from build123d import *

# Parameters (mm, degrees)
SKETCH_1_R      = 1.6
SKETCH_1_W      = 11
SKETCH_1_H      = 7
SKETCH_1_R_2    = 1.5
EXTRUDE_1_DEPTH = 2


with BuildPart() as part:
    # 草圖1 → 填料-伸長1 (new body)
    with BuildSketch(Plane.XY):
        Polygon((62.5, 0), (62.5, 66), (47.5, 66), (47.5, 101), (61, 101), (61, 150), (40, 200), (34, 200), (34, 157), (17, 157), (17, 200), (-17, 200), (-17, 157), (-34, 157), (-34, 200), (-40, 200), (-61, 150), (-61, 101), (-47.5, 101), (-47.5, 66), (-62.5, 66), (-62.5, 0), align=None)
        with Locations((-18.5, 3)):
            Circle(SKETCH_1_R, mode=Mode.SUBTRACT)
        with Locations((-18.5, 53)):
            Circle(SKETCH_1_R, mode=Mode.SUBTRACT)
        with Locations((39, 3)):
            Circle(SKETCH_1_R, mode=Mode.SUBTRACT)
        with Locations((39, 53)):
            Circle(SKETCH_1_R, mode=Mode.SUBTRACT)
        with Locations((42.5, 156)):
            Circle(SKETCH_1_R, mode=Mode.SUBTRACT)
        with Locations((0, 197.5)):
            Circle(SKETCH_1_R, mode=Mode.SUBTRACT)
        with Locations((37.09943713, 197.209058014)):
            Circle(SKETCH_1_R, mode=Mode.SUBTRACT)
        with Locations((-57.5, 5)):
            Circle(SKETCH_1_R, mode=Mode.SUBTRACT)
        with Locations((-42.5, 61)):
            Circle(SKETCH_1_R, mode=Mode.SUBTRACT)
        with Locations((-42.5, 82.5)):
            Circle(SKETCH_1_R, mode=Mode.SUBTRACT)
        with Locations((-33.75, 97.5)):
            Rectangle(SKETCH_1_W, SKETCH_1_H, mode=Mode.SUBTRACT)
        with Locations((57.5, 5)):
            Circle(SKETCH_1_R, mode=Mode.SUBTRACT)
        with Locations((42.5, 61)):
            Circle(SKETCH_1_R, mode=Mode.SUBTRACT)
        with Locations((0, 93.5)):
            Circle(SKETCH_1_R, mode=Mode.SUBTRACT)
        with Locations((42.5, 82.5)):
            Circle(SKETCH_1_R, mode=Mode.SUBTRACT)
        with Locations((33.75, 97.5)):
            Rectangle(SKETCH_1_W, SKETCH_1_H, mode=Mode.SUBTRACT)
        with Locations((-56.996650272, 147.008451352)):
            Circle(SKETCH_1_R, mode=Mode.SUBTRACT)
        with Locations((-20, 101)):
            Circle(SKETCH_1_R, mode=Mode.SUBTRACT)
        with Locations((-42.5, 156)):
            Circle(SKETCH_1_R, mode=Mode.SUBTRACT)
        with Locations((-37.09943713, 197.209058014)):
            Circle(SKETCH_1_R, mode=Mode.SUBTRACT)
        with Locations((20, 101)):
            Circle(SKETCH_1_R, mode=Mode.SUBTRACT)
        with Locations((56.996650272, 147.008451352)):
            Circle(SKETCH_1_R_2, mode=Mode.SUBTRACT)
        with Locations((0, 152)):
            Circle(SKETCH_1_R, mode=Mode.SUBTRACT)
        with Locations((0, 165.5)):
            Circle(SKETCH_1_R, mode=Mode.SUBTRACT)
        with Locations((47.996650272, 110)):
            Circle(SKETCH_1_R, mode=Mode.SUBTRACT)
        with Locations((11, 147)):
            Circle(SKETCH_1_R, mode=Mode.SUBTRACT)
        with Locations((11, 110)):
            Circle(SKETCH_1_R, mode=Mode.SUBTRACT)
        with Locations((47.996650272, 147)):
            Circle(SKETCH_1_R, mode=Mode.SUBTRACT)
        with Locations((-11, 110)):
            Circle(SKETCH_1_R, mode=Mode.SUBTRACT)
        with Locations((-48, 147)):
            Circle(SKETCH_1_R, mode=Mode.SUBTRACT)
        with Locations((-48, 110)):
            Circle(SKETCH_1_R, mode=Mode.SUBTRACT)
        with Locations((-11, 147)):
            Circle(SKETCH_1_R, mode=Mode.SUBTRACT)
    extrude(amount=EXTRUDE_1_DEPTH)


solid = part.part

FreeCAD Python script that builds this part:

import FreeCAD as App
import Part
import Sketcher
from FreeCAD import Vector


def add_polygon(sketch, points):
    """Adds a closed chain of lines whose ends are joined by coincident constraints."""
    first, n = sketch.GeometryCount, len(points)
    for a, b in zip(points, points[1:] + points[:1]):
        sketch.addGeometry(Part.LineSegment(App.Vector(*a, 0), App.Vector(*b, 0)), False)
    for i in range(n):
        sketch.addConstraint(Sketcher.Constraint("Coincident", first + i, 2, first + (i + 1) % n, 1))

doc = App.newDocument("Part")
params = doc.addObject("Spreadsheet::Sheet", "Params")
for row, (alias, value) in enumerate([
    ("sketch1_diameter", "3 mm"),
    ("sketch1_diameter2", "3.2 mm"),
    ("sketch1_width", "15 mm"),
    ("sketch1_width2", "6 mm"),
    ("sketch1_width3", "17 mm"),
    ("pad1_length", "2 mm"),
], start=1):
    params.set(f"A{row}", alias)
    params.set(f"B{row}", "=" + value)
    params.setAlias(f"B{row}", alias)

body = doc.addObject("PartDesign::Body", "Body")

sketch1 = body.newObject("Sketcher::SketchObject", "Sketch")
sketch1.AttachmentSupport = (doc.getObject("XY_Plane"), [""])
sketch1.MapMode = "FlatFace"
add_polygon(sketch1, [(62.5, 0), (62.5, 66), (47.5, 66), (47.5, 101), (61, 101), (61, 150), (40, 200), (34, 200), (34, 157), (17, 157), (17, 200), (-17, 200), (-17, 157), (-34, 157), (-34, 200), (-40, 200), (-61, 150), (-61, 101), (-47.5, 101), (-47.5, 66), (-62.5, 66), (-62.5, 0)])
sketch1.addGeometry(Part.Circle(Vector(-57.5, 5, 0), Vector(0, 0, 1), 1.6), False)
sketch1.addGeometry(Part.Circle(Vector(-18.5, 3, 0), Vector(0, 0, 1), 1.6), False)
sketch1.addGeometry(Part.Circle(Vector(-42.5, 61, 0), Vector(0, 0, 1), 1.6), False)
sketch1.addGeometry(Part.Circle(Vector(-42.5, 82.5, 0), Vector(0, 0, 1), 1.6), False)
add_polygon(sketch1, [(-28.2, 94), (-39.2, 94), (-39.2, 101), (-28.2, 101)])
sketch1.addGeometry(Part.Circle(Vector(-18.5, 53, 0), Vector(0, 0, 1), 1.6), False)
sketch1.addGeometry(Part.Circle(Vector(39, 3, 0), Vector(0, 0, 1), 1.6), False)
sketch1.addGeometry(Part.Circle(Vector(57.5, 5, 0), Vector(0, 0, 1), 1.6), False)
sketch1.addGeometry(Part.Circle(Vector(0, 93.5, 0), Vector(0, 0, 1), 1.6), False)
sketch1.addGeometry(Part.Circle(Vector(39, 53, 0), Vector(0, 0, 1), 1.6), False)
sketch1.addGeometry(Part.Circle(Vector(42.5, 61, 0), Vector(0, 0, 1), 1.6), False)
sketch1.addGeometry(Part.Circle(Vector(42.5, 82.5, 0), Vector(0, 0, 1), 1.6), False)
add_polygon(sketch1, [(39.2, 94), (28.2, 94), (28.2, 101), (39.2, 101)])
sketch1.addGeometry(Part.Circle(Vector(-48, 110, 0), Vector(0, 0, 1), 1.6), False)
sketch1.addGeometry(Part.Circle(Vector(-57, 147, 0), Vector(0, 0, 1), 1.6), False)
sketch1.addGeometry(Part.Circle(Vector(-48, 147, 0), Vector(0, 0, 1), 1.6), False)
sketch1.addGeometry(Part.Circle(Vector(-20, 101, 0), Vector(0, 0, 1), 1.6), False)
sketch1.addGeometry(Part.Circle(Vector(-11, 110, 0), Vector(0, 0, 1), 1.6), False)
sketch1.addGeometry(Part.Circle(Vector(-11, 147, 0), Vector(0, 0, 1), 1.6), False)
sketch1.addGeometry(Part.Circle(Vector(-42.5, 156, 0), Vector(0, 0, 1), 1.6), False)
sketch1.addGeometry(Part.Circle(Vector(-37.1, 197.2, 0), Vector(0, 0, 1), 1.6), False)
sketch1.addGeometry(Part.Circle(Vector(11, 110, 0), Vector(0, 0, 1), 1.6), False)
sketch1.addGeometry(Part.Circle(Vector(20, 101, 0), Vector(0, 0, 1), 1.6), False)
sketch1.addGeometry(Part.Circle(Vector(11, 147, 0), Vector(0, 0, 1), 1.6), False)
sketch1.addGeometry(Part.Circle(Vector(48, 110, 0), Vector(0, 0, 1), 1.6), False)
sketch1.addGeometry(Part.Circle(Vector(48, 147, 0), Vector(0, 0, 1), 1.6), False)
sketch1.addGeometry(Part.Circle(Vector(57, 147, 0), Vector(0, 0, 1), 1.5), False)
sketch1.addGeometry(Part.Circle(Vector(0, 152, 0), Vector(0, 0, 1), 1.6), False)
sketch1.addGeometry(Part.Circle(Vector(0, 165.5, 0), Vector(0, 0, 1), 1.6), False)
sketch1.addGeometry(Part.Circle(Vector(0, 197.5, 0), Vector(0, 0, 1), 1.6), False)
sketch1.addGeometry(Part.Circle(Vector(42.5, 156, 0), Vector(0, 0, 1), 1.6), False)
sketch1.addGeometry(Part.Circle(Vector(37.1, 197.2, 0), Vector(0, 0, 1), 1.6), False)
sketch1.addConstraint([
    Sketcher.Constraint("Vertical", 0),
    Sketcher.Constraint("Horizontal", 1),
    Sketcher.Constraint("Vertical", 2),
    Sketcher.Constraint("Horizontal", 3),
    Sketcher.Constraint("Vertical", 4),
    Sketcher.Constraint("Horizontal", 6),
    Sketcher.Constraint("Vertical", 7),
    Sketcher.Constraint("Horizontal", 8),
    Sketcher.Constraint("Vertical", 9),
    Sketcher.Constraint("Horizontal", 10),
    Sketcher.Constraint("Vertical", 11),
    Sketcher.Constraint("Horizontal", 12),
    Sketcher.Constraint("Vertical", 13),
    Sketcher.Constraint("Horizontal", 14),
    Sketcher.Constraint("Vertical", 16),
    Sketcher.Constraint("Horizontal", 17),
    Sketcher.Constraint("Vertical", 18),
    Sketcher.Constraint("Horizontal", 19),
    Sketcher.Constraint("Vertical", 20),
    Sketcher.Constraint("Horizontal", 21),
    Sketcher.Constraint("Horizontal", 26),
    Sketcher.Constraint("Vertical", 27),
    Sketcher.Constraint("Horizontal", 28),
    Sketcher.Constraint("Vertical", 29),
    Sketcher.Constraint("Horizontal", 37),
    Sketcher.Constraint("Vertical", 38),
    Sketcher.Constraint("Horizontal", 39),
    Sketcher.Constraint("Vertical", 40),
    Sketcher.Constraint("Equal", 22, 23),
    Sketcher.Constraint("Equal", 23, 24),
    Sketcher.Constraint("Equal", 24, 25),
    Sketcher.Constraint("Equal", 25, 30),
    Sketcher.Constraint("Equal", 30, 31),
    Sketcher.Constraint("Equal", 31, 32),
    Sketcher.Constraint("Equal", 32, 33),
    Sketcher.Constraint("Equal", 33, 34),
    Sketcher.Constraint("Equal", 34, 35),
    Sketcher.Constraint("Equal", 35, 36),
    Sketcher.Constraint("Equal", 36, 41),
    Sketcher.Constraint("Equal", 41, 42),
    Sketcher.Constraint("Equal", 42, 43),
    Sketcher.Constraint("Equal", 43, 44),
    Sketcher.Constraint("Equal", 44, 45),
    Sketcher.Constraint("Equal", 45, 46),
    Sketcher.Constraint("Equal", 46, 47),
    Sketcher.Constraint("Equal", 47, 48),
    Sketcher.Constraint("Equal", 48, 49),
    Sketcher.Constraint("Equal", 49, 50),
    Sketcher.Constraint("Equal", 50, 51),
    Sketcher.Constraint("Equal", 51, 52),
    Sketcher.Constraint("Equal", 52, 53),
    Sketcher.Constraint("Equal", 53, 55),
    Sketcher.Constraint("Equal", 55, 56),
    Sketcher.Constraint("Equal", 56, 57),
    Sketcher.Constraint("Equal", 57, 58),
    Sketcher.Constraint("Equal", 58, 59),
    Sketcher.Constraint("Symmetric", 20, 2, 21, 2, -1, 1),
    Sketcher.Constraint("Symmetric", 22, 3, 32, 3, -2),
    Sketcher.Constraint("Symmetric", 24, 3, 35, 3, -2),
    Sketcher.Constraint("Symmetric", 25, 3, 36, 3, -2),
    Sketcher.Constraint("Symmetric", 45, 3, 49, 3, -2),
    Sketcher.Constraint("Symmetric", 44, 3, 50, 3, -2),
    Sketcher.Constraint("Symmetric", 46, 3, 51, 3, -2),
    Sketcher.Constraint("Symmetric", 42, 3, 54, 3, -2),
    Sketcher.Constraint("Symmetric", 47, 3, 58, 3, -2),
    Sketcher.Constraint("Symmetric", 48, 3, 59, 3, -2),
    Sketcher.Constraint("Symmetric", 8, 2, 11, 2, -2),
    Sketcher.Constraint("Symmetric", 6, 2, 13, 2, -2),
    Sketcher.Constraint("Symmetric", 4, 2, 15, 2, -2),
    Sketcher.Constraint("Symmetric", 2, 2, 17, 2, -2),
    Sketcher.Constraint("Symmetric", 29, 2, 37, 2, -2),
    Sketcher.Constraint("Symmetric", 27, 2, 39, 2, -2),
    Sketcher.Constraint("PointOnObject", 33, 3, -2),
    Sketcher.Constraint("PointOnObject", 55, 3, -2),
    Sketcher.Constraint("PointOnObject", 56, 3, -2),
    Sketcher.Constraint("PointOnObject", 57, 3, -2),
    Sketcher.Constraint("Horizontal", 23, 3, 31, 3),
    Sketcher.Constraint("Horizontal", 30, 3, 34, 3),
    Sketcher.Constraint("Horizontal", 41, 3, 45, 3),
    Sketcher.Constraint("Horizontal", 43, 3, 46, 3),
    Sketcher.Constraint("Horizontal", 49, 3, 52, 3),
    Sketcher.Constraint("Horizontal", 51, 3, 53, 3),
    Sketcher.Constraint("Horizontal", 50, 3, 2, 2),
    Sketcher.Constraint("Horizontal", 6, 2, 9, 2),
    Sketcher.Constraint("Horizontal", 1, 2, 18, 2),
    Sketcher.Constraint("Horizontal", 17, 2, 27, 2),
    Sketcher.Constraint("Vertical", 24, 3, 25, 3),
    Sketcher.Constraint("Vertical", 23, 3, 30, 3),
    Sketcher.Constraint("Vertical", 31, 3, 34, 3),
    Sketcher.Constraint("Vertical", 41, 3, 43, 3),
    Sketcher.Constraint("Vertical", 45, 3, 46, 3),
    Sketcher.Constraint("Vertical", 25, 3, 47, 3),
    Sketcher.Constraint("Vertical", 52, 3, 53, 3),
    Sketcher.Constraint("Equal", 6, 14),
    Sketcher.Constraint("Diameter", 54, 3.0),
    Sketcher.Constraint("Diameter", 22, 3.2),
    Sketcher.Constraint("DistanceX", 1, 2, 1, 1, 15.0),
    Sketcher.Constraint("DistanceX", 6, 2, 6, 1, 6.0),
    Sketcher.Constraint("DistanceX", 8, 2, 8, 1, 17.0),
    Sketcher.Constraint("DistanceX", 10, 2, 10, 1, 34.0),
    Sketcher.Constraint("DistanceX", 21, 1, 21, 2, 125.0),
    Sketcher.Constraint("DistanceX", 26, 2, 26, 1, 11.0),
    Sketcher.Constraint("DistanceY", 0, 1, 0, 2, 66.0),
    Sketcher.Constraint("DistanceY", 2, 1, 2, 2, 35.0),
    Sketcher.Constraint("DistanceY", 4, 1, 4, 2, 49.0),
    Sketcher.Constraint("DistanceY", 7, 2, 7, 1, 43.0),
    Sketcher.Constraint("DistanceY", 27, 1, 27, 2, 7.0),
    Sketcher.Constraint("DistanceX", 3, 1, 3, 2, 13.5),
    Sketcher.Constraint("DistanceY", -1, 1, 22, 3, 5.0),
    Sketcher.Constraint("DistanceY", -1, 1, 23, 3, 3.0),
    Sketcher.Constraint("DistanceY", -1, 1, 24, 3, 61.0),
    Sketcher.Constraint("DistanceY", -1, 1, 30, 3, 53.0),
    Sketcher.Constraint("DistanceX", -1, 1, 31, 3, 39.0),
    Sketcher.Constraint("DistanceX", 41, 3, -1, 1, 48.0),
    Sketcher.Constraint("DistanceY", -1, 1, 41, 3, 110.0),
    Sketcher.Constraint("DistanceY", -1, 1, 43, 3, 147.0),
    Sketcher.Constraint("DistanceX", 44, 3, -1, 1, 20.0),
    Sketcher.Constraint("DistanceX", 45, 3, -1, 1, 11.0),
    Sketcher.Constraint("DistanceY", -1, 1, 47, 3, 156.0),
    Sketcher.Constraint("DistanceY", -1, 1, 55, 3, 152.0),
    Sketcher.Constraint("DistanceY", -1, 1, 5, 2, 200.0),
    Sketcher.Constraint("DistanceX", 22, 3, 23, 3, 39.0),
    Sketcher.Constraint("DistanceX", 22, 3, 24, 3, 15.0),
    Sketcher.Constraint("DistanceX", 23, 3, 32, 3, 76.0),
    Sketcher.Constraint("DistanceY", 25, 3, 33, 3, 11.0),
    Sketcher.Constraint("DistanceX", 53, 3, 54, 3, 9.0),
    Sketcher.Constraint("DistanceY", 56, 3, 57, 3, 32.0),
    Sketcher.Constraint("DistanceY", -1, 1, 25, 3, 82.5),
    Sketcher.Constraint("DistanceY", -1, 1, 56, 3, 165.5),
    Sketcher.Constraint("DistanceX", 26, 2, -1, 1, 39.25),
    Sketcher.Constraint("DistanceX", 42, 3, -1, 1, 56.99665),
    Sketcher.Constraint("DistanceY", -1, 1, 42, 3, 147.008451),
    Sketcher.Constraint("DistanceY", -1, 1, 48, 3, 197.209058),
    Sketcher.Constraint("DistanceX", 48, 3, -1, 1, 37.099437),
])
sketch1.setExpression("Constraints[124]", "Params.sketch1_diameter")
sketch1.setExpression("Constraints[125]", "Params.sketch1_diameter2")
sketch1.setExpression("Constraints[126]", "Params.sketch1_width")
sketch1.setExpression("Constraints[127]", "Params.sketch1_width2")
sketch1.setExpression("Constraints[128]", "Params.sketch1_width3")
pad1 = body.newObject("PartDesign::Pad", "Pad")
pad1.Profile = sketch1
pad1.setExpression("Length", "Params.pad1_length")

doc.recompute()
